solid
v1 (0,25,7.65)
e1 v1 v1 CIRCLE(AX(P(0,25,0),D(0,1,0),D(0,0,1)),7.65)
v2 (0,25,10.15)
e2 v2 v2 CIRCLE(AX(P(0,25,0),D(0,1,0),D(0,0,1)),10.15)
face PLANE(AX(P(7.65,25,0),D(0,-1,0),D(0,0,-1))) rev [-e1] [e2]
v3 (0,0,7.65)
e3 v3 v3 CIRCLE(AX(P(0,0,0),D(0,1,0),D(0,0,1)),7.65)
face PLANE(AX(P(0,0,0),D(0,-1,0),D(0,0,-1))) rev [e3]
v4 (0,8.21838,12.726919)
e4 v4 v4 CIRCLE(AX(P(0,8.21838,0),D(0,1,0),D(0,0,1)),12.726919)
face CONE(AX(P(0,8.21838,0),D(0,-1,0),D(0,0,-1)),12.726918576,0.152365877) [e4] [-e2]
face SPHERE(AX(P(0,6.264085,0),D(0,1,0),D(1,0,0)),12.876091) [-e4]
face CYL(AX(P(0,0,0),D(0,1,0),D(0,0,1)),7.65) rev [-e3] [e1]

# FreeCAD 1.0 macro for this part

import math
import FreeCAD as App
import Part
import Sketcher
from FreeCAD import Vector

doc = App.newDocument("Part")
body = doc.addObject("PartDesign::Body", "Body")

# Sketch on XY plane
sketch1 = body.newObject("Sketcher::SketchObject", "Sketch")
sketch1.AttachmentSupport = (doc.getObject("XY_Plane"), [""])
sketch1.MapMode = "FlatFace"
sketch1.addGeometry([
    Part.LineSegment(Vector(7.7, 0, 0), Vector(0, 0, 0)),  # 0
    Part.LineSegment(Vector(0, 0, 0), Vector(0, -6.6, 0)),  # 1
    Part.ArcOfCircle(Part.Circle(Vector(0, 6.3, 0), Vector(0, 0, 1), 12.9), math.radians(-90), math.radians(9)),  # 2
    Part.LineSegment(Vector(12.7, 8.2, 0), Vector(10.2, 25, 0)),  # 3
    Part.LineSegment(Vector(10.2, 25, 0), Vector(7.7, 25, 0)),  # 4
    Part.LineSegment(Vector(7.7, 25, 0), Vector(7.7, 0, 0)),  # 5
], False)
sketch1.addConstraint([
    Sketcher.Constraint("Coincident", 0, 2, 1, 1),
    Sketcher.Constraint("Coincident", 1, 2, 2, 1),
    Sketcher.Constraint("Tangent", 2, 2, 3, 1),
    Sketcher.Constraint("Coincident", 3, 2, 4, 1),
    Sketcher.Constraint("Coincident", 4, 2, 5, 1),
    Sketcher.Constraint("Coincident", 5, 2, 0, 1),
    Sketcher.Constraint("Horizontal", 0),
    Sketcher.Constraint("Vertical", 1),
    Sketcher.Constraint("Horizontal", 4),
    Sketcher.Constraint("Vertical", 5),
    Sketcher.Constraint("Coincident", 0, 2, -1, 1),
    Sketcher.Constraint("PointOnObject", 2, 3, -2),
    Sketcher.Constraint("DistanceY", 5, 2, 5, 1, 25.0),
    Sketcher.Constraint("DistanceX", 4, 2, 4, 1, 2.5),
    Sketcher.Constraint("DistanceX", 0, 2, 0, 1, 7.65),
    Sketcher.Constraint("Radius", 2, 12.876091),
    Sketcher.Constraint("Distance", 3, 16.978318),
])
revolution = body.newObject("PartDesign::Revolution", "Revolution")
revolution.Profile = sketch1
revolution.ReferenceAxis = (sketch1, ["V_Axis"])
revolution.Angle = 360

doc.recompute()
